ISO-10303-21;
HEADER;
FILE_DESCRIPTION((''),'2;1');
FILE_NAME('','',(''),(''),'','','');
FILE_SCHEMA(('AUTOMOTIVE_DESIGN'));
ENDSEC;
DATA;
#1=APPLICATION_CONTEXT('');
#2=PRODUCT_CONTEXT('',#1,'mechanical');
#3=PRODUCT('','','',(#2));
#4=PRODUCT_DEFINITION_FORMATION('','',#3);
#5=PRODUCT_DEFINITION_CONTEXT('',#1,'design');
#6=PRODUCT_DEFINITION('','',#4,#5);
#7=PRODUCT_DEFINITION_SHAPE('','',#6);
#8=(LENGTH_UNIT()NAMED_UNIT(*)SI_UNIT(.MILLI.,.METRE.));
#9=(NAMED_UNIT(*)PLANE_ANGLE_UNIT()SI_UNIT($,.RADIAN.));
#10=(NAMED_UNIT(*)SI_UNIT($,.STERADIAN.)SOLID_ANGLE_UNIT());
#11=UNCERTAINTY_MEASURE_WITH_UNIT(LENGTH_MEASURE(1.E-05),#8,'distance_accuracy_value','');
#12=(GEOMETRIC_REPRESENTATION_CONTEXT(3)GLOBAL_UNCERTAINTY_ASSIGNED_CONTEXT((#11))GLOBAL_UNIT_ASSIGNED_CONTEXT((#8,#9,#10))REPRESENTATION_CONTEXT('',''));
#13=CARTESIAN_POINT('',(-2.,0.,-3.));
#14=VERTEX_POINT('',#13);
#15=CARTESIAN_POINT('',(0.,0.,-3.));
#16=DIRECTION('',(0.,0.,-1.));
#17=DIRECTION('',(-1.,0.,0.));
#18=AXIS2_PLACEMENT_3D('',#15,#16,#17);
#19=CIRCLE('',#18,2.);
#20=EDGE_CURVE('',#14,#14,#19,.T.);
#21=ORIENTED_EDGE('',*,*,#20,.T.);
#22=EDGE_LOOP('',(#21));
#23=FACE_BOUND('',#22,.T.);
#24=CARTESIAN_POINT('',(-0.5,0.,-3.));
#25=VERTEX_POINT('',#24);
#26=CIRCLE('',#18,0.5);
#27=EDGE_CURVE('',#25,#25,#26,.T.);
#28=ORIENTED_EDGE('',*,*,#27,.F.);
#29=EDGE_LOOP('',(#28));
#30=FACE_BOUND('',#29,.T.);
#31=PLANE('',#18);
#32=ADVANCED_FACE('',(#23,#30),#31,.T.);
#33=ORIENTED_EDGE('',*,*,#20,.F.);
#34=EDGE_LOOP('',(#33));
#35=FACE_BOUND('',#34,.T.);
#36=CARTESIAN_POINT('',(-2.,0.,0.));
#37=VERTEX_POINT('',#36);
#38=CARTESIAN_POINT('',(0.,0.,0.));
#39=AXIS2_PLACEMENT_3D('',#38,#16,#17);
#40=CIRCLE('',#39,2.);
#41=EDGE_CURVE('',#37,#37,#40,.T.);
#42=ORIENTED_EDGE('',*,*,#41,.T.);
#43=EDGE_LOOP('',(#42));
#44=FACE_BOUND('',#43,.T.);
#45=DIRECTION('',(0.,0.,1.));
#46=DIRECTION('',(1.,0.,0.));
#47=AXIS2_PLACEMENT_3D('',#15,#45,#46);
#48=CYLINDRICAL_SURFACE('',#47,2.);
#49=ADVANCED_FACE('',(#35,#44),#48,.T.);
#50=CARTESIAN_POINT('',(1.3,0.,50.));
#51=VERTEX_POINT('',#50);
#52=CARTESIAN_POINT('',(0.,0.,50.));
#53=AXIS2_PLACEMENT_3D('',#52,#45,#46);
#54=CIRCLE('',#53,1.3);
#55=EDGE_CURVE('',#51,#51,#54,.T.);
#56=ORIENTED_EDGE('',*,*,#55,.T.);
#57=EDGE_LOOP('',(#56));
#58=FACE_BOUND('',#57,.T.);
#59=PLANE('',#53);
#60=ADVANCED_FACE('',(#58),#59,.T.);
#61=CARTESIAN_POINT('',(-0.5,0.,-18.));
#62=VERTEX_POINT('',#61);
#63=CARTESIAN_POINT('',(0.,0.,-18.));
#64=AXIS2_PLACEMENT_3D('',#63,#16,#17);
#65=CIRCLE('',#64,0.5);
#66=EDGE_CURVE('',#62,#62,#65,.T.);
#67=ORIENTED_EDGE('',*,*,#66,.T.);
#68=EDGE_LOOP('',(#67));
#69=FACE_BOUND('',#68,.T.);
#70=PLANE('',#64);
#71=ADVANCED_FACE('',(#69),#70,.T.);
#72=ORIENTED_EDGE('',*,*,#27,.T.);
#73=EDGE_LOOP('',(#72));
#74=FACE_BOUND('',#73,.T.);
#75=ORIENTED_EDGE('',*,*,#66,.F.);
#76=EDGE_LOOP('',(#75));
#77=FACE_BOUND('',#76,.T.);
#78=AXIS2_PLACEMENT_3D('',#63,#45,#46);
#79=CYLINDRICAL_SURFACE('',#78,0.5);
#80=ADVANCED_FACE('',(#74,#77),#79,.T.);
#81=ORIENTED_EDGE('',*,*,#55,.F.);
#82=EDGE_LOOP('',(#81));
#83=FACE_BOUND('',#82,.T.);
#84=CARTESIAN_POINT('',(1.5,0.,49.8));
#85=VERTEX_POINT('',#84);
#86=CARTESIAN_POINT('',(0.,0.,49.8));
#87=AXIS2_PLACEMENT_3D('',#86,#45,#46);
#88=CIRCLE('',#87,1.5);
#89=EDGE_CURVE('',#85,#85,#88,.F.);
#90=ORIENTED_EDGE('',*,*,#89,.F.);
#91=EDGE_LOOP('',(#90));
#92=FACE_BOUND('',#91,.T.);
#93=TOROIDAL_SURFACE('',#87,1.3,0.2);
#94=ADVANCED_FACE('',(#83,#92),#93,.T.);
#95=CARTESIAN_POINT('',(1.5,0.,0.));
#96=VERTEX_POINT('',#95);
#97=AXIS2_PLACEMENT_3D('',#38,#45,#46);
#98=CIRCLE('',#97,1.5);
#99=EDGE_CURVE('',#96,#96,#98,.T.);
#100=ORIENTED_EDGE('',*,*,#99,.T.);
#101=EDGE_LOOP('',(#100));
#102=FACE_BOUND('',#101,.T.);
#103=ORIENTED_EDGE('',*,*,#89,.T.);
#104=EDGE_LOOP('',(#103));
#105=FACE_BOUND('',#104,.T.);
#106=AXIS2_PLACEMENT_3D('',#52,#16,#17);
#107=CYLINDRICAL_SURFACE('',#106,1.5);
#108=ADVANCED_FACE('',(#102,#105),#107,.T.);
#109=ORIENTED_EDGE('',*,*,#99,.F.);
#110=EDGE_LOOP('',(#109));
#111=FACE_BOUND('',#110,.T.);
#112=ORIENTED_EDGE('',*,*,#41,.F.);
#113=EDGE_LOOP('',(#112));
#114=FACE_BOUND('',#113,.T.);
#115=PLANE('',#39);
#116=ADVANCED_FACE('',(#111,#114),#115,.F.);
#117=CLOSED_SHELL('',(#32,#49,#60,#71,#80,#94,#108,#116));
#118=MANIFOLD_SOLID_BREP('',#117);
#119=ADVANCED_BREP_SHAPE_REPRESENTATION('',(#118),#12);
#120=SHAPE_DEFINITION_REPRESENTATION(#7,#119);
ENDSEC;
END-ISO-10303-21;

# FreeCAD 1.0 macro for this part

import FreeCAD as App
import Part
import Sketcher
from FreeCAD import Vector
Q = App.Units.Quantity


def edges_at(feature, points):
    """Names of the edges that pass closest to the given points."""
    edges = feature.Shape.Edges
    near = lambda p: min(range(len(edges)), key=lambda i: edges[i].distToShape(Part.Vertex(*p))[0])
    return sorted({f"Edge{near(p) + 1}" for p in points})

doc = App.newDocument("Part")
body = doc.addObject("PartDesign::Body", "Body")

# Sketch on XY plane
sketch1 = body.newObject("Sketcher::SketchObject", "Sketch")
sketch1.AttachmentSupport = (doc.getObject("XY_Plane"), [""])
sketch1.MapMode = "FlatFace"
sketch1.addGeometry(Part.Circle(Vector(0, 0, 0), Vector(0, 0, 1), 1.5), False)
sketch1.addConstraint(Sketcher.Constraint("Coincident", 0, 3, -1, 1))
sketch1.addConstraint(Sketcher.Constraint("Diameter", 0, Q("3 mm")))
pad1 = body.newObject("PartDesign::Pad", "Pad")
pad1.Profile = sketch1
pad1.Length = 50
doc.recompute()

fillet = body.newObject("PartDesign::Fillet", "Fillet")
fillet.Base = (pad1, edges_at(pad1, [(-1.5, 0, 50)]))
fillet.Radius = 0.2

# Sketch on XY plane
sketch2 = body.newObject("Sketcher::SketchObject", "Sketch001")
sketch2.AttachmentSupport = (doc.getObject("XY_Plane"), [""])
sketch2.MapMode = "FlatFace"
sketch2.addGeometry(Part.Circle(Vector(0, 0, 0), Vector(0, 0, 1), 2), False)
sketch2.addConstraint(Sketcher.Constraint("Coincident", 0, 3, -1, 1))
sketch2.addConstraint(Sketcher.Constraint("Diameter", 0, Q("4 mm")))
pad2 = body.newObject("PartDesign::Pad", "Pad001")
pad2.Profile = sketch2
pad2.Length = 3
pad2.Reversed = True

# Sketch on XY plane
sketch3 = body.newObject("Sketcher::SketchObject", "Sketch002")
sketch3.AttachmentSupport = (doc.getObject("XY_Plane"), [""])
sketch3.MapMode = "FlatFace"
sketch3.AttachmentOffset = App.Placement(Vector(0, 0, -3), App.Rotation())
sketch3.addGeometry(Part.Circle(Vector(0, 0, 0), Vector(0, 0, 1), 0.5), False)
sketch3.addConstraint(Sketcher.Constraint("Coincident", 0, 3, -1, 1))
sketch3.addConstraint(Sketcher.Constraint("Diameter", 0, Q("1 mm")))
pad3 = body.newObject("PartDesign::Pad", "Pad002")
pad3.Profile = sketch3
pad3.Length = 15
pad3.Reversed = True

doc.recompute()
